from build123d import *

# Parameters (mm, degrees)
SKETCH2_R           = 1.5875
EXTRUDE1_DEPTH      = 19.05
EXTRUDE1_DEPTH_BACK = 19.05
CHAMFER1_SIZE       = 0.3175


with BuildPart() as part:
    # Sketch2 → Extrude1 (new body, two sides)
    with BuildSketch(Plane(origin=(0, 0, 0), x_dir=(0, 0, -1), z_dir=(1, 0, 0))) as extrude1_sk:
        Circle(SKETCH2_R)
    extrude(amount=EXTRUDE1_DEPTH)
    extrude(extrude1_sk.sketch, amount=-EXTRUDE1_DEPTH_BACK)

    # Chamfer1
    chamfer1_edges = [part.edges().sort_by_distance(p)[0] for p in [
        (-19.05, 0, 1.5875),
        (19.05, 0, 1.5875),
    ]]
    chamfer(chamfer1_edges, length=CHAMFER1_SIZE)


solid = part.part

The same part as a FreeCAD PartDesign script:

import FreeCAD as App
import Part
import Sketcher
Q = App.Units.Quantity


def edges_at(feature, points):
    """Names of the edges that pass closest to the given points."""
    edges = feature.Shape.Edges
    near = lambda p: min(range(len(edges)), key=lambda i: edges[i].distToShape(Part.Vertex(*p))[0])
    return sorted({f"Edge{near(p) + 1}" for p in points})

doc = App.newDocument("Part")
body = doc.addObject("PartDesign::Body", "Body")

sketch1 = body.newObject("Sketcher::SketchObject", "Sketch")
sketch1.AttachmentSupport = (doc.getObject("YZ_Plane"), [""])
sketch1.MapMode = "FlatFace"
sketch1.addGeometry(Part.Circle(App.Vector(0, 0, 0), App.Vector(0, 0, 1), 1.6), False)
sketch1.addConstraint([
    Sketcher.Constraint("Coincident", 0, 3, -1, 1),
    Sketcher.Constraint("Diameter", 0, Q("0.125 in")),
])
pad1 = body.newObject("PartDesign::Pad", "Pad")
pad1.Profile = sketch1
pad1.Type = "TwoLengths"
pad1.Length = Q("0.75 in")
pad1.Length2 = Q("0.75 in")
doc.recompute()

chamfer = body.newObject("PartDesign::Chamfer", "Chamfer")
chamfer.Base = (pad1, edges_at(pad1, [(-19.05, 0, 1.587), (19.05, 0, 1.587)]))
chamfer.Size = Q("0.0125 in")

doc.recompute()
